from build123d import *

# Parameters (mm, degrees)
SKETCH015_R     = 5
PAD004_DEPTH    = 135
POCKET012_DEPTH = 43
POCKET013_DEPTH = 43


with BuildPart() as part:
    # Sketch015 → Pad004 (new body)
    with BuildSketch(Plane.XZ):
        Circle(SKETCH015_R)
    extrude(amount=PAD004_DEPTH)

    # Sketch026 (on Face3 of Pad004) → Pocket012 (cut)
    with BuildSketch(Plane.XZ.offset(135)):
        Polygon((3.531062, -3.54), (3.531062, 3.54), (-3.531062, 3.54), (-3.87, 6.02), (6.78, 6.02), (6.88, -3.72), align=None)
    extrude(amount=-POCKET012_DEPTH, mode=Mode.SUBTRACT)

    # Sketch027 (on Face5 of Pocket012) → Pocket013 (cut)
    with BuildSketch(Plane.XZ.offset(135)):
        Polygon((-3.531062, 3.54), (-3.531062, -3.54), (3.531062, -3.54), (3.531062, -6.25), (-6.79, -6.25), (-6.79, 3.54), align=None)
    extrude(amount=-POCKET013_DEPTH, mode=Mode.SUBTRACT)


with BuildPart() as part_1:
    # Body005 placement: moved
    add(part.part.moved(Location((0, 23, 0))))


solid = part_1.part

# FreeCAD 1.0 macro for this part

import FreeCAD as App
import Part
import Sketcher
Q = App.Units.Quantity


def add_polygon(sketch, points):
    """Adds a closed chain of lines whose ends are joined by coincident constraints."""
    first, n = sketch.GeometryCount, len(points)
    for a, b in zip(points, points[1:] + points[:1]):
        sketch.addGeometry(Part.LineSegment(App.Vector(*a, 0), App.Vector(*b, 0)), False)
    for i in range(n):
        sketch.addConstraint(Sketcher.Constraint("Coincident", first + i, 2, first + (i + 1) % n, 1))

doc = App.newDocument("Part")
body = doc.addObject("PartDesign::Body", "Body")

# Sketch on XZ plane
sketch1 = body.newObject("Sketcher::SketchObject", "Sketch")
sketch1.AttachmentSupport = (doc.getObject("XZ_Plane"), [""])
sketch1.MapMode = "FlatFace"
sketch1.addGeometry(Part.Circle(App.Vector(0, 0, 0), App.Vector(0, 0, 1), 5), False)
sketch1.addConstraint(Sketcher.Constraint("Coincident", 0, 3, -1, 1))
sketch1.addConstraint(Sketcher.Constraint("Diameter", 0, Q("10 mm")))
pad1 = body.newObject("PartDesign::Pad", "Pad")
pad1.Profile = sketch1
pad1.Length = 135

# Sketch on XZ plane
sketch2 = body.newObject("Sketcher::SketchObject", "Sketch001")
sketch2.AttachmentSupport = (doc.getObject("XZ_Plane"), [""])
sketch2.MapMode = "FlatFace"
sketch2.AttachmentOffset = App.Placement(App.Vector(0, 0, 135), App.Rotation())
add_polygon(sketch2, [(3.5, 3.5), (3.5, -3.5), (6.9, -3.7), (6.8, 6), (-3.9, 6), (-3.5, 3.5)])  # lines 0-5
sketch2.addConstraint(Sketcher.Constraint("Vertical", 0))
sketch2.addConstraint(Sketcher.Constraint("Horizontal", 3))
sketch2.addConstraint(Sketcher.Constraint("Horizontal", 5))
sketch2.addConstraint(Sketcher.Constraint("Symmetric", 0, 2, 4, 2, -1, 1))
sketch2.addConstraint(Sketcher.Constraint("DistanceX", 3, 2, 3, 1, Q("10.65 mm")))
sketch2.addConstraint(Sketcher.Constraint("DistanceY", 0, 2, 0, 1, Q("7.08 mm")))
sketch2.addConstraint(Sketcher.Constraint("DistanceX", 2, 2, 1, 2, Q("0.1 mm")))
sketch2.addConstraint(Sketcher.Constraint("DistanceX", -1, 1, 1, 2, Q("6.88 mm")))
sketch2.addConstraint(Sketcher.Constraint("DistanceY", 1, 2, -1, 1, Q("3.72 mm")))
sketch2.addConstraint(Sketcher.Constraint("DistanceY", -1, 1, 2, 2, Q("6.02 mm")))
sketch2.addConstraint(Sketcher.Constraint("Distance", 1, Q("3.353772 mm")))
pocket1 = body.newObject("PartDesign::Pocket", "Pocket")
pocket1.Profile = sketch2
pocket1.Length = 43

# Sketch on XZ plane
sketch3 = body.newObject("Sketcher::SketchObject", "Sketch002")
sketch3.AttachmentSupport = (doc.getObject("XZ_Plane"), [""])
sketch3.MapMode = "FlatFace"
sketch3.AttachmentOffset = App.Placement(App.Vector(0, 0, 135), App.Rotation())
add_polygon(sketch3, [(-3.5, -3.5), (-3.5, 3.5), (-6.8, 3.5), (-6.8, -6.2), (3.5, -6.2), (3.5, -3.5)])  # lines 0-5
sketch3.addConstraint(Sketcher.Constraint("Vertical", 0))
sketch3.addConstraint(Sketcher.Constraint("Horizontal", 1))
sketch3.addConstraint(Sketcher.Constraint("Vertical", 2))
sketch3.addConstraint(Sketcher.Constraint("Horizontal", 3))
sketch3.addConstraint(Sketcher.Constraint("Vertical", 4))
sketch3.addConstraint(Sketcher.Constraint("Horizontal", 5))
sketch3.addConstraint(Sketcher.Constraint("Symmetric", 0, 2, 4, 2, -1, 1))
sketch3.addConstraint(Sketcher.Constraint("DistanceY", 0, 1, 0, 2, Q("7.08 mm")))
sketch3.addConstraint(Sketcher.Constraint("DistanceY", 2, 2, 2, 1, Q("9.79 mm")))
sketch3.addConstraint(Sketcher.Constraint("DistanceX", 1, 2, -1, 1, Q("6.79 mm")))
sketch3.addConstraint(Sketcher.Constraint("DistanceX", 1, 2, 1, 1, Q("3.258938 mm")))
pocket2 = body.newObject("PartDesign::Pocket", "Pocket001")
pocket2.Profile = sketch3
pocket2.Length = 43
body2 = doc.addObject("PartDesign::Body", "Body001")
doc.recompute()

body.Placement = App.Placement(App.Vector(0, 23, 0), App.Rotation(App.Vector(0, 0, 1), 0))
boolean = body2.newObject("PartDesign::Boolean", "Boolean")
boolean.Type = "Fuse"
boolean.addObjects([body])

doc.recompute()
